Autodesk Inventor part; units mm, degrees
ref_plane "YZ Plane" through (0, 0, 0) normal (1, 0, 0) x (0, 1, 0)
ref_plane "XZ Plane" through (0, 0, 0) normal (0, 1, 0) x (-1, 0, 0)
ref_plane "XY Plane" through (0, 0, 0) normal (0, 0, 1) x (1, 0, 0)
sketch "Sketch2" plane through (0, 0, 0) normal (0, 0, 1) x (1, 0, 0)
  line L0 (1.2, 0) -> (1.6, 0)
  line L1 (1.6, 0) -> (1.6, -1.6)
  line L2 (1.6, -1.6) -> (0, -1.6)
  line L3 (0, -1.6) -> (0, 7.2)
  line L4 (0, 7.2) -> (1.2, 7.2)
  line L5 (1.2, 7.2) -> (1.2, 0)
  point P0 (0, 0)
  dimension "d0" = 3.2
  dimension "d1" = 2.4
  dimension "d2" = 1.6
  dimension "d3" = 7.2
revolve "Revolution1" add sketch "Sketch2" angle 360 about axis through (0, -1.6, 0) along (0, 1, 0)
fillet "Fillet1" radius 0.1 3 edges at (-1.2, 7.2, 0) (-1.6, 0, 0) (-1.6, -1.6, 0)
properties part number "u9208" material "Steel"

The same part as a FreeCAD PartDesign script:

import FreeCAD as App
import Part
import Sketcher
Q = App.Units.Quantity


def edges_at(feature, points):
    """Names of the edges that pass closest to the given points."""
    edges = feature.Shape.Edges
    near = lambda p: min(range(len(edges)), key=lambda i: edges[i].distToShape(Part.Vertex(*p))[0])
    return sorted({f"Edge{near(p) + 1}" for p in points})

doc = App.newDocument("Part")
params = doc.addObject("Spreadsheet::Sheet", "Params")
for row, (alias, value) in enumerate([
    ("sketch1_width", "1.6 mm"),
    ("sketch1_height", "7.2 mm"),
    ("sketch1_width2", "0.4 mm"),
    ("revolution_angle", "360 deg"),
    ("fillet_radius", "0.1 mm"),
], start=1):
    params.set(f"A{row}", alias)
    params.set(f"B{row}", "=" + value)
    params.setAlias(f"B{row}", alias)

body = doc.addObject("PartDesign::Body", "Body")

# Sketch on XY plane
sketch1 = doc.addObject("Sketcher::SketchObject", "Sketch")
body.addObject(sketch1)
sketch1.AttachmentSupport = (doc.XY_Plane, [""])
sketch1.MapMode = "FlatFace"
sketch1.addGeometry([
    Part.LineSegment(App.Vector(1.6, 0, 0), App.Vector(1.2, 0, 0)),  # 0
    Part.LineSegment(App.Vector(1.2, 0, 0), App.Vector(1.2, 7.2, 0)),  # 1
    Part.LineSegment(App.Vector(1.2, 7.2, 0), App.Vector(0, 7.2, 0)),  # 2
    Part.LineSegment(App.Vector(0, 7.2, 0), App.Vector(0, -1.6, 0)),  # 3
    Part.LineSegment(App.Vector(0, -1.6, 0), App.Vector(1.6, -1.6, 0)),  # 4
    Part.LineSegment(App.Vector(1.6, -1.6, 0), App.Vector(1.6, 0, 0)),  # 5
], False)
sketch1.addConstraint([
    Sketcher.Constraint("Coincident", 0, 2, 1, 1),
    Sketcher.Constraint("Coincident", 1, 2, 2, 1),
    Sketcher.Constraint("Coincident", 2, 2, 3, 1),
    Sketcher.Constraint("Coincident", 3, 2, 4, 1),
    Sketcher.Constraint("Coincident", 4, 2, 5, 1),
    Sketcher.Constraint("Coincident", 5, 2, 0, 1),
    Sketcher.Constraint("Horizontal", 0),
    Sketcher.Constraint("Vertical", 1),
    Sketcher.Constraint("Horizontal", 2),
    Sketcher.Constraint("Vertical", 3),
    Sketcher.Constraint("Horizontal", 4),
    Sketcher.Constraint("Vertical", 5),
    Sketcher.Constraint("PointOnObject", 0, 2, -1),
    Sketcher.Constraint("PointOnObject", 2, 2, -2),
    Sketcher.Constraint("Equal", 4, 5),
    Sketcher.Constraint("DistanceX", 4, 1, 4, 2, Q("1.6 mm")),
    Sketcher.Constraint("DistanceY", 1, 1, 1, 2, Q("7.2 mm")),
    Sketcher.Constraint("DistanceX", 0, 2, 0, 1, Q("0.4 mm")),
])
sketch1.setExpression("Constraints[15]", "Params.sketch1_width")
sketch1.setExpression("Constraints[16]", "Params.sketch1_height")
sketch1.setExpression("Constraints[17]", "Params.sketch1_width2")
revolution = doc.addObject("PartDesign::Revolution", "Revolution")
body.addObject(revolution)
revolution.Profile = sketch1
revolution.ReferenceAxis = (sketch1, ["V_Axis"])
revolution.setExpression("Angle", "Params.revolution_angle")
doc.recompute()

fillet = doc.addObject("PartDesign::Fillet", "Fillet")
body.addObject(fillet)
fillet.Base = (revolution, edges_at(revolution, [(-1.2, 7.2, 0), (-1.6, 0, 0), (-1.6, -1.6, 0)]))
fillet.setExpression("Radius", "Params.fillet_radius")

doc.recompute()
